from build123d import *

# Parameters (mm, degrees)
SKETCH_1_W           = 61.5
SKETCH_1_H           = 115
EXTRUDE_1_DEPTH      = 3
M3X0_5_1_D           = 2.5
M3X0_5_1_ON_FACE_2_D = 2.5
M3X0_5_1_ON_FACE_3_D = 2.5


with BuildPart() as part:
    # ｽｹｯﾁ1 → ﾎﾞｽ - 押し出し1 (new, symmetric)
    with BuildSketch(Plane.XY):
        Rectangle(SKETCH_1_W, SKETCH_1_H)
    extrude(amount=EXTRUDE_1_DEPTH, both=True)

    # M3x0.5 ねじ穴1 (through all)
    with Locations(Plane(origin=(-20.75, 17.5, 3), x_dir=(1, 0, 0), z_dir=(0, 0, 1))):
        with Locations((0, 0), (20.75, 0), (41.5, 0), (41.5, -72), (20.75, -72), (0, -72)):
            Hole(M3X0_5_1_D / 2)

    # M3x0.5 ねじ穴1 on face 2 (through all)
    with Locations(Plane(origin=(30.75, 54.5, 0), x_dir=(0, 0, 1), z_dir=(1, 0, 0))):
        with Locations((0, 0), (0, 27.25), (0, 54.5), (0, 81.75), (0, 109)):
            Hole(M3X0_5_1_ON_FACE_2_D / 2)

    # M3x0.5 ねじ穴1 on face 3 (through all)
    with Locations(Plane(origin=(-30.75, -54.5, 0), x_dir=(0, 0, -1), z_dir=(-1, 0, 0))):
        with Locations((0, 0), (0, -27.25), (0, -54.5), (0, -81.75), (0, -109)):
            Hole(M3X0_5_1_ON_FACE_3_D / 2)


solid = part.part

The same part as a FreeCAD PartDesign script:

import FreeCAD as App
import Part
import Sketcher
Q = App.Units.Quantity


def add_polygon(sketch, points):
    """Adds a closed chain of lines whose ends are joined by coincident constraints."""
    first, n = sketch.GeometryCount, len(points)
    for a, b in zip(points, points[1:] + points[:1]):
        sketch.addGeometry(Part.LineSegment(App.Vector(*a, 0), App.Vector(*b, 0)), False)
    for i in range(n):
        sketch.addConstraint(Sketcher.Constraint("Coincident", first + i, 2, first + (i + 1) % n, 1))

doc = App.newDocument("Part")
body = doc.addObject("PartDesign::Body", "Body")

# Sketch on XY plane
sketch1 = body.newObject("Sketcher::SketchObject", "Sketch")
sketch1.AttachmentSupport = (doc.getObject("XY_Plane"), [""])
sketch1.MapMode = "FlatFace"
add_polygon(sketch1, [(-30.75, 57.5), (-30.75, -57.5), (30.75, -57.5), (30.75, 57.5)])  # lines 0-3
sketch1.addConstraint(Sketcher.Constraint("Vertical", 0))
sketch1.addConstraint(Sketcher.Constraint("Horizontal", 1))
sketch1.addConstraint(Sketcher.Constraint("Vertical", 2))
sketch1.addConstraint(Sketcher.Constraint("Horizontal", 3))
sketch1.addConstraint(Sketcher.Constraint("Symmetric", 0, 2, 2, 2, -1, 1))
sketch1.addConstraint(Sketcher.Constraint("DistanceY", 0, 2, 0, 1, Q("115 mm")))
sketch1.addConstraint(Sketcher.Constraint("DistanceX", 1, 1, 1, 2, Q("61.5 mm")))
pad1 = body.newObject("PartDesign::Pad", "Pad")
pad1.Profile = sketch1
pad1.Length = 6
pad1.Midplane = True

# Sketch on XY plane
sketch2 = body.newObject("Sketcher::SketchObject", "Sketch001")
sketch2.AttachmentSupport = (doc.getObject("XY_Plane"), [""])
sketch2.MapMode = "FlatFace"
sketch2.AttachmentOffset = App.Placement(App.Vector(0, 0, 3), App.Rotation())
sketch2.addGeometry(Part.Circle(App.Vector(-20.75, 17.5, 0), App.Vector(0, 0, 1), 1.25), False)
sketch2.addGeometry(Part.Circle(App.Vector(0, 17.5, 0), App.Vector(0, 0, 1), 1.25), False)
sketch2.addGeometry(Part.Circle(App.Vector(20.75, 17.5, 0), App.Vector(0, 0, 1), 1.25), False)
sketch2.addGeometry(Part.Circle(App.Vector(20.75, -54.5, 0), App.Vector(0, 0, 1), 1.25), False)
sketch2.addGeometry(Part.Circle(App.Vector(0, -54.5, 0), App.Vector(0, 0, 1), 1.25), False)
sketch2.addGeometry(Part.Circle(App.Vector(-20.75, -54.5, 0), App.Vector(0, 0, 1), 1.25), False)
sketch2.addConstraint(Sketcher.Constraint("Equal", 0, 1))
sketch2.addConstraint(Sketcher.Constraint("Equal", 1, 2))
sketch2.addConstraint(Sketcher.Constraint("Equal", 2, 3))
sketch2.addConstraint(Sketcher.Constraint("Equal", 3, 4))
sketch2.addConstraint(Sketcher.Constraint("Equal", 4, 5))
sketch2.addConstraint(Sketcher.Constraint("Symmetric", 0, 3, 2, 3, -2))
sketch2.addConstraint(Sketcher.Constraint("Symmetric", 3, 3, 5, 3, -2))
sketch2.addConstraint(Sketcher.Constraint("PointOnObject", 1, 3, -2))
sketch2.addConstraint(Sketcher.Constraint("PointOnObject", 4, 3, -2))
sketch2.addConstraint(Sketcher.Constraint("Horizontal", 0, 3, 1, 3))
sketch2.addConstraint(Sketcher.Constraint("Horizontal", 3, 3, 4, 3))
sketch2.addConstraint(Sketcher.Constraint("Vertical", 2, 3, 3, 3))
sketch2.addConstraint(Sketcher.Constraint("Diameter", 0, Q("2.5 mm")))
sketch2.addConstraint(Sketcher.Constraint("DistanceY", 3, 3, 2, 3, Q("72 mm")))
sketch2.addConstraint(Sketcher.Constraint("DistanceY", -1, 1, 0, 3, Q("17.5 mm")))
sketch2.addConstraint(Sketcher.Constraint("DistanceX", 0, 3, 2, 3, Q("41.5 mm")))
doc.recompute()
hole = body.newObject("PartDesign::Hole", "Hole")
hole.Profile = sketch2
hole.ThreadType = "None"
hole.Diameter = 2.5
hole.DepthType = "ThroughAll"

# Sketch on YZ plane
sketch3 = body.newObject("Sketcher::SketchObject", "Sketch002")
sketch3.AttachmentSupport = (doc.getObject("YZ_Plane"), [""])
sketch3.MapMode = "FlatFace"
sketch3.AttachmentOffset = App.Placement(App.Vector(0, 0, 30.75), App.Rotation())
sketch3.addGeometry(Part.Circle(App.Vector(54.5, 0, 0), App.Vector(0, 0, 1), 1.25), False)
sketch3.addGeometry(Part.Circle(App.Vector(27.25, 0, 0), App.Vector(0, 0, 1), 1.25), False)
sketch3.addGeometry(Part.Circle(App.Vector(0, 0, 0), App.Vector(0, 0, 1), 1.25), False)
sketch3.addGeometry(Part.Circle(App.Vector(-27.25, 0, 0), App.Vector(0, 0, 1), 1.25), False)
sketch3.addGeometry(Part.Circle(App.Vector(-54.5, 0, 0), App.Vector(0, 0, 1), 1.25), False)
sketch3.addConstraint(Sketcher.Constraint("Coincident", 2, 3, -1, 1))
sketch3.addConstraint(Sketcher.Constraint("Equal", 0, 1))
sketch3.addConstraint(Sketcher.Constraint("Equal", 1, 2))
sketch3.addConstraint(Sketcher.Constraint("Equal", 2, 3))
sketch3.addConstraint(Sketcher.Constraint("Equal", 3, 4))
sketch3.addConstraint(Sketcher.Constraint("Symmetric", 1, 3, 3, 3, -1, 1))
sketch3.addConstraint(Sketcher.Constraint("Symmetric", 0, 3, 4, 3, -1, 1))
sketch3.addConstraint(Sketcher.Constraint("PointOnObject", 0, 3, -1))
sketch3.addConstraint(Sketcher.Constraint("PointOnObject", 1, 3, -1))
sketch3.addConstraint(Sketcher.Constraint("Diameter", 0, Q("2.5 mm")))
sketch3.addConstraint(Sketcher.Constraint("DistanceX", 4, 3, 0, 3, Q("109 mm")))
sketch3.addConstraint(Sketcher.Constraint("DistanceX", 3, 3, 1, 3, Q("54.5 mm")))
doc.recompute()
hole2 = body.newObject("PartDesign::Hole", "Hole001")
hole2.Profile = sketch3
hole2.ThreadType = "None"
hole2.Diameter = 2.5
hole2.DepthType = "ThroughAll"

# Sketch on YZ plane
sketch4 = body.newObject("Sketcher::SketchObject", "Sketch003")
sketch4.AttachmentSupport = (doc.getObject("YZ_Plane"), [""])
sketch4.MapMode = "FlatFace"
sketch4.AttachmentOffset = App.Placement(App.Vector(0, 0, -30.75), App.Rotation())
sketch4.addGeometry(Part.Circle(App.Vector(-54.5, 0, 0), App.Vector(0, 0, 1), 1.25), False)
sketch4.addGeometry(Part.Circle(App.Vector(-27.25, 0, 0), App.Vector(0, 0, 1), 1.25), False)
sketch4.addGeometry(Part.Circle(App.Vector(0, 0, 0), App.Vector(0, 0, 1), 1.25), False)
sketch4.addGeometry(Part.Circle(App.Vector(27.25, 0, 0), App.Vector(0, 0, 1), 1.25), False)
sketch4.addGeometry(Part.Circle(App.Vector(54.5, 0, 0), App.Vector(0, 0, 1), 1.25), False)
sketch4.addConstraint(Sketcher.Constraint("Coincident", 2, 3, -1, 1))
sketch4.addConstraint(Sketcher.Constraint("Equal", 0, 1))
sketch4.addConstraint(Sketcher.Constraint("Equal", 1, 2))
sketch4.addConstraint(Sketcher.Constraint("Equal", 2, 3))
sketch4.addConstraint(Sketcher.Constraint("Equal", 3, 4))
sketch4.addConstraint(Sketcher.Constraint("Symmetric", 1, 3, 3, 3, -1, 1))
sketch4.addConstraint(Sketcher.Constraint("Symmetric", 0, 3, 4, 3, -1, 1))
sketch4.addConstraint(Sketcher.Constraint("PointOnObject", 0, 3, -1))
sketch4.addConstraint(Sketcher.Constraint("PointOnObject", 1, 3, -1))
sketch4.addConstraint(Sketcher.Constraint("Diameter", 0, Q("2.5 mm")))
sketch4.addConstraint(Sketcher.Constraint("DistanceX", 0, 3, 4, 3, Q("109 mm")))
sketch4.addConstraint(Sketcher.Constraint("DistanceX", 1, 3, 3, 3, Q("54.5 mm")))
doc.recompute()
hole3 = body.newObject("PartDesign::Hole", "Hole002")
hole3.Profile = sketch4
hole3.ThreadType = "None"
hole3.Diameter = 2.5
hole3.DepthType = "ThroughAll"
hole3.Reversed = True

doc.recompute()
